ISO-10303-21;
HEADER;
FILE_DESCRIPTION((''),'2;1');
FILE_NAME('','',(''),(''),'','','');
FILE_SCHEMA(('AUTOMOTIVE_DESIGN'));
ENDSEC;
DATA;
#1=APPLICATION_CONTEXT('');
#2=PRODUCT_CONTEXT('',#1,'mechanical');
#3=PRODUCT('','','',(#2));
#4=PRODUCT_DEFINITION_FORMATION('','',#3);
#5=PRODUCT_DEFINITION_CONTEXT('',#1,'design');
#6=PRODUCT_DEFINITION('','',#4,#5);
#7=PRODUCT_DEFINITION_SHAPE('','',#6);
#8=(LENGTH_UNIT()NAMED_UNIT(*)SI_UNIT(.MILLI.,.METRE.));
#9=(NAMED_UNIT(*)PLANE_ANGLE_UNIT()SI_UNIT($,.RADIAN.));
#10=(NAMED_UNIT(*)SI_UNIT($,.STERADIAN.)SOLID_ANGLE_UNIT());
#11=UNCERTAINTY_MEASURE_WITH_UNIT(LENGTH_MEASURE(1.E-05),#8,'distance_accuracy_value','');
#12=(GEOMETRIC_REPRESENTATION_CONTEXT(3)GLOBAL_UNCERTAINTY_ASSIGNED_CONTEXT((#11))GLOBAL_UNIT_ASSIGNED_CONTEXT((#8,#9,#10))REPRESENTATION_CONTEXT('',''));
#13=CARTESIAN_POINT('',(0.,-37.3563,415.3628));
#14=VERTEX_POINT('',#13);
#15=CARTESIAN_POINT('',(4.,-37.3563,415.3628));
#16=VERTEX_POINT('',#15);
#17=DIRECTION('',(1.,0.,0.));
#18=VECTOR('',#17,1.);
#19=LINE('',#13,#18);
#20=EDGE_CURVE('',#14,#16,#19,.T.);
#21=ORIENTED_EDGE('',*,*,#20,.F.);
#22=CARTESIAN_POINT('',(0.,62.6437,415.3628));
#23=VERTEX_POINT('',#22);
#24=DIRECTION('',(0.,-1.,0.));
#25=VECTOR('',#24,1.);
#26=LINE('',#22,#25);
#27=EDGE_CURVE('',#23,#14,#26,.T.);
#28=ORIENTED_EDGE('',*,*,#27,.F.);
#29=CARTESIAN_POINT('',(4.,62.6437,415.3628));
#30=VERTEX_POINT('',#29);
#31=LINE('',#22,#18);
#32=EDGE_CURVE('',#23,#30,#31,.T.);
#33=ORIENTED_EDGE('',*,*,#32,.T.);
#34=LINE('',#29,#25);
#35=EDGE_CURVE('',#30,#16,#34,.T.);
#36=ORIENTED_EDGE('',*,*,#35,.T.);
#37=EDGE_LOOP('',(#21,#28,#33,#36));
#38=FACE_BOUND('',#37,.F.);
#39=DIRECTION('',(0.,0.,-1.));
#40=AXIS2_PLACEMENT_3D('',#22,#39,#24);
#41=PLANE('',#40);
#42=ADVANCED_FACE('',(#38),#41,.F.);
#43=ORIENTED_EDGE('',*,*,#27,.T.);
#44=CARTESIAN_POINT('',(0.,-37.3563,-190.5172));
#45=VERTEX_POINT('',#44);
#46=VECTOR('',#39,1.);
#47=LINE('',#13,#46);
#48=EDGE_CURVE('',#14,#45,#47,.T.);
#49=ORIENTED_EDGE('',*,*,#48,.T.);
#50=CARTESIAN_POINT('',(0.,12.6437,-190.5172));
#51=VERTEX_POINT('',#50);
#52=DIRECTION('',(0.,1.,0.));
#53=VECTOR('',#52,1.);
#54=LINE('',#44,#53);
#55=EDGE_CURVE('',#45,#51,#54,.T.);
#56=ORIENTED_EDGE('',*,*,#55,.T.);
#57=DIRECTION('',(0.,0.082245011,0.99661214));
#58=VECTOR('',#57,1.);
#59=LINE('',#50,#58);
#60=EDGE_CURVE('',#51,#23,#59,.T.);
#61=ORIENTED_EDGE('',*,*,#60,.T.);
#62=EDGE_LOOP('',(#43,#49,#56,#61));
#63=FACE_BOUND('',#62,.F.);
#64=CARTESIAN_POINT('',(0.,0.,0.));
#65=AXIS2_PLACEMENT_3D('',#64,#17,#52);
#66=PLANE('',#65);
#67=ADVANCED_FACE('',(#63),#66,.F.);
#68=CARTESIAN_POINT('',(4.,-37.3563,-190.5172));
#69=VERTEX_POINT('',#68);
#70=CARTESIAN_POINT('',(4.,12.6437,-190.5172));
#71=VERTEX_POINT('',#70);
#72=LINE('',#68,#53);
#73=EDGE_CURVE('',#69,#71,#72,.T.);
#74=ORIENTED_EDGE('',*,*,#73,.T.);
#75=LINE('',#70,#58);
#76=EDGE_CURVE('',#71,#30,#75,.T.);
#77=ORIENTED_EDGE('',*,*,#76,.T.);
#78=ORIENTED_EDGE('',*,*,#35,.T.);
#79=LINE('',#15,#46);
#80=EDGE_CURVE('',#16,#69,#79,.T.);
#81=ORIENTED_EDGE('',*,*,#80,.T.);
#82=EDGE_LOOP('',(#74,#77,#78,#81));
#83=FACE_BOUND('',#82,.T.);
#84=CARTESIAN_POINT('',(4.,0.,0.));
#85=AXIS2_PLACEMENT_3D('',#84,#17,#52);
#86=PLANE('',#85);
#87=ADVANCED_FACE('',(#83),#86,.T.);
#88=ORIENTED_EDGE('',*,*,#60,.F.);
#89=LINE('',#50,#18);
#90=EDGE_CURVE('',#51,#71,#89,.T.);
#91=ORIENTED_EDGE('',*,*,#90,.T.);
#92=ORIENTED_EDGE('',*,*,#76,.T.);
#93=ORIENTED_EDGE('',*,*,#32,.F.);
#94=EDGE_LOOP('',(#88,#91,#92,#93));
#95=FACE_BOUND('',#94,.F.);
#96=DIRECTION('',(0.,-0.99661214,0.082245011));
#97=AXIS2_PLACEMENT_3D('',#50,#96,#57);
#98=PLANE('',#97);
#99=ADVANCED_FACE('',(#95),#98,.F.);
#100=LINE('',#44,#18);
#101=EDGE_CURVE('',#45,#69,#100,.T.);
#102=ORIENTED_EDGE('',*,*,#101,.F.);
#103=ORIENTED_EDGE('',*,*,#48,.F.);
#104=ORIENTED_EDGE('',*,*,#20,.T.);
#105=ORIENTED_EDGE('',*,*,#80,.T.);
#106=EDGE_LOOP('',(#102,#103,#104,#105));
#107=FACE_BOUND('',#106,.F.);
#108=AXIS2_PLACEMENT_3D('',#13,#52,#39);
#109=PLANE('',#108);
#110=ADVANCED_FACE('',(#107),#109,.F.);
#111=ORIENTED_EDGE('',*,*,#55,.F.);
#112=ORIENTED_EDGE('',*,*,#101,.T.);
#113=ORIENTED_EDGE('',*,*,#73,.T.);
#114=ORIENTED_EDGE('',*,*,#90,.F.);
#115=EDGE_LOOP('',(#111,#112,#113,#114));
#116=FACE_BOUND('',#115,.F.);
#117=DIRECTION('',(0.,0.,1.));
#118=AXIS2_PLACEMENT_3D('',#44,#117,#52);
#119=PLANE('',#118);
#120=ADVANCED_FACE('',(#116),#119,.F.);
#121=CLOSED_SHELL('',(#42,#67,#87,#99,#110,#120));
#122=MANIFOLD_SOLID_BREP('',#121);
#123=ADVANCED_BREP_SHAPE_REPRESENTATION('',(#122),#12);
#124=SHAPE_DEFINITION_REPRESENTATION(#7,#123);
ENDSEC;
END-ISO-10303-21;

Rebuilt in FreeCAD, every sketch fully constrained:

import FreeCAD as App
import Part
import Sketcher
from FreeCAD import Vector
Q = App.Units.Quantity

doc = App.newDocument("Part")
body = doc.addObject("PartDesign::Body", "Body")

# Sketch on YZ plane
sketch1 = body.newObject("Sketcher::SketchObject", "Sketch")
sketch1.AttachmentSupport = (doc.getObject("YZ_Plane"), [""])
sketch1.MapMode = "FlatFace"
sketch1.addGeometry([
    Part.LineSegment(Vector(13, -191, 0), Vector(63, 415, 0)),
    Part.LineSegment(Vector(63, 415, 0), Vector(-37, 415, 0)),
    Part.LineSegment(Vector(-37, 415, 0), Vector(-37, -191, 0)),
    Part.LineSegment(Vector(-37, -191, 0), Vector(13, -191, 0)),
], False)
sketch1.addConstraint([
    Sketcher.Constraint("Coincident", 0, 2, 1, 1),
    Sketcher.Constraint("Coincident", 1, 2, 2, 1),
    Sketcher.Constraint("Coincident", 2, 2, 3, 1),
    Sketcher.Constraint("Coincident", 3, 2, 0, 1),
    Sketcher.Constraint("Horizontal", 1),
    Sketcher.Constraint("Vertical", 2),
    Sketcher.Constraint("Horizontal", 3),
    Sketcher.Constraint("DistanceX", 1, 2, 1, 1, Q("100 mm")),
    Sketcher.Constraint("DistanceX", 3, 1, 3, 2, Q("50 mm")),
    Sketcher.Constraint("DistanceY", 2, 2, 2, 1, Q("605.88 mm")),
    Sketcher.Constraint("DistanceX", -1, 1, 0, 2, Q("62.6437 mm")),
    Sketcher.Constraint("DistanceY", -1, 1, 0, 2, Q("415.3628 mm")),
])
pad1 = body.newObject("PartDesign::Pad", "Pad")
pad1.Profile = sketch1
pad1.Length = 4

doc.recompute()
